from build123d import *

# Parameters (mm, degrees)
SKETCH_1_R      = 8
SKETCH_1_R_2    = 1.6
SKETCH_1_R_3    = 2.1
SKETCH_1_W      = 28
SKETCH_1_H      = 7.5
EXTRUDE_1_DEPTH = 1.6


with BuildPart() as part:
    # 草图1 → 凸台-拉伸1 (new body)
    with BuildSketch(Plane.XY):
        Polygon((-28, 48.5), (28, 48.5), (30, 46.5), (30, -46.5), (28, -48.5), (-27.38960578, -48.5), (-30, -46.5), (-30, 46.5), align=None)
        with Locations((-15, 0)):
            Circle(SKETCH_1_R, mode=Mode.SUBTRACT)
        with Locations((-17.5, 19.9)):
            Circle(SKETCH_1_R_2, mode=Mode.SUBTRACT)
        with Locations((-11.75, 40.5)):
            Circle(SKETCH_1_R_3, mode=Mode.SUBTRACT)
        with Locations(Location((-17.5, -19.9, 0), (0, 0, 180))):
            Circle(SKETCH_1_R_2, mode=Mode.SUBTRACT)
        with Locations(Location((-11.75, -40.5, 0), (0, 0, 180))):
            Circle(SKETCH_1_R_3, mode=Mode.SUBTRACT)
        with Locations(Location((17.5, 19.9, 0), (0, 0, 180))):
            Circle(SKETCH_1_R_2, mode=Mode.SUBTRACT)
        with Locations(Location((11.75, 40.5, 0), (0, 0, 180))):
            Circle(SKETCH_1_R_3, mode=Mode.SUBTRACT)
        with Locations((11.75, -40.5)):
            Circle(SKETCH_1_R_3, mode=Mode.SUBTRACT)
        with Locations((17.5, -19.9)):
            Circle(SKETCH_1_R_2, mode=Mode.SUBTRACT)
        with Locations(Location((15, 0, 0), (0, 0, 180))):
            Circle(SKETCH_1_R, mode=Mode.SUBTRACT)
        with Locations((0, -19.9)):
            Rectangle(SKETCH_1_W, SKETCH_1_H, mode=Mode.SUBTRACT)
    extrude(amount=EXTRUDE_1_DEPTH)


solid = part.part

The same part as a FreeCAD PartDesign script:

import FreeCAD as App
import Part
import Sketcher
Q = App.Units.Quantity


def add_polygon(sketch, points):
    """Adds a closed chain of lines whose ends are joined by coincident constraints."""
    first, n = sketch.GeometryCount, len(points)
    for a, b in zip(points, points[1:] + points[:1]):
        sketch.addGeometry(Part.LineSegment(App.Vector(*a, 0), App.Vector(*b, 0)), False)
    for i in range(n):
        sketch.addConstraint(Sketcher.Constraint("Coincident", first + i, 2, first + (i + 1) % n, 1))

doc = App.newDocument("Part")
body = doc.addObject("PartDesign::Body", "Body")

sketch1 = body.newObject("Sketcher::SketchObject", "Sketch")
sketch1.AttachmentSupport = (doc.getObject("XY_Plane"), [""])
sketch1.MapMode = "FlatFace"
add_polygon(sketch1, [(28, 48.5), (-28, 48.5), (-30, 46.5), (-30, -46.5), (-27.4, -48.5), (28, -48.5), (30, -46.5), (30, 46.5)])
sketch1.addGeometry(Part.Circle(App.Vector(11.8, -40.5, 0), App.Vector(0, 0, 1), 2.1), False)
sketch1.addGeometry(Part.Circle(App.Vector(17.5, -19.9, 0), App.Vector(0, 0, 1), 1.6), False)
sketch1.addGeometry(Part.Circle(App.Vector(-11.8, -40.5, 0), App.Vector(0, 0, 1), 2.1), False)
add_polygon(sketch1, [(-14, -23.6), (-14, -16.1), (14, -16.1), (14, -23.6)])
sketch1.addGeometry(Part.Circle(App.Vector(-17.5, -19.9, 0), App.Vector(0, 0, 1), 1.6), False)
sketch1.addGeometry(Part.Circle(App.Vector(15, 0, 0), App.Vector(0, 0, 1), 8), False)
sketch1.addGeometry(Part.Circle(App.Vector(17.5, 19.9, 0), App.Vector(0, 0, 1), 1.6), False)
sketch1.addGeometry(Part.Circle(App.Vector(11.8, 40.5, 0), App.Vector(0, 0, 1), 2.1), False)
sketch1.addGeometry(Part.Circle(App.Vector(-15, 0, 0), App.Vector(0, 0, 1), 8), False)
sketch1.addGeometry(Part.Circle(App.Vector(-17.5, 19.9, 0), App.Vector(0, 0, 1), 1.6), False)
sketch1.addGeometry(Part.Circle(App.Vector(-11.8, 40.5, 0), App.Vector(0, 0, 1), 2.1), False)
sketch1.addConstraint(Sketcher.Constraint("Horizontal", 0))
sketch1.addConstraint(Sketcher.Constraint("Vertical", 2))
sketch1.addConstraint(Sketcher.Constraint("Horizontal", 4))
sketch1.addConstraint(Sketcher.Constraint("Vertical", 6))
sketch1.addConstraint(Sketcher.Constraint("Vertical", 11))
sketch1.addConstraint(Sketcher.Constraint("Horizontal", 12))
sketch1.addConstraint(Sketcher.Constraint("Vertical", 13))
sketch1.addConstraint(Sketcher.Constraint("Horizontal", 14))
sketch1.addConstraint(Sketcher.Constraint("Equal", 8, 10))
sketch1.addConstraint(Sketcher.Constraint("Equal", 9, 15))
sketch1.addConstraint(Sketcher.Constraint("Equal", 15, 17))
sketch1.addConstraint(Sketcher.Constraint("Equal", 10, 18))
sketch1.addConstraint(Sketcher.Constraint("Equal", 16, 19))
sketch1.addConstraint(Sketcher.Constraint("Equal", 17, 20))
sketch1.addConstraint(Sketcher.Constraint("Equal", 18, 21))
sketch1.addConstraint(Sketcher.Constraint("Symmetric", 15, 3, 17, 3, -1, 1))
sketch1.addConstraint(Sketcher.Constraint("Symmetric", 10, 3, 18, 3, -1, 1))
sketch1.addConstraint(Sketcher.Constraint("Symmetric", 16, 3, 19, 3, -1, 1))
sketch1.addConstraint(Sketcher.Constraint("Symmetric", 9, 3, 20, 3, -1, 1))
sketch1.addConstraint(Sketcher.Constraint("Symmetric", 8, 3, 21, 3, -1, 1))
sketch1.addConstraint(Sketcher.Constraint("Symmetric", 0, 2, 4, 2, -1, 1))
sketch1.addConstraint(Sketcher.Constraint("Symmetric", 1, 2, 5, 2, -1, 1))
sketch1.addConstraint(Sketcher.Constraint("Symmetric", 8, 3, 10, 3, -2))
sketch1.addConstraint(Sketcher.Constraint("Symmetric", 9, 3, 15, 3, -2))
sketch1.addConstraint(Sketcher.Constraint("PointOnObject", 16, 3, -1))
sketch1.addConstraint(Sketcher.Constraint("Perpendicular", 5, 7))
sketch1.addConstraint(Sketcher.Constraint("Horizontal", 2, 2, 5, 2))
sketch1.addConstraint(Sketcher.Constraint("Horizontal", 1, 2, 6, 2))
sketch1.addConstraint(Sketcher.Constraint("Vertical", 4, 2, 7, 2))
sketch1.addConstraint(Sketcher.Constraint("Diameter", 16, Q("16 mm")))
sketch1.addConstraint(Sketcher.Constraint("Diameter", 8, Q("4.2 mm")))
sketch1.addConstraint(Sketcher.Constraint("Diameter", 9, Q("3.2 mm")))
sketch1.addConstraint(Sketcher.Constraint("DistanceX", 0, 2, 0, 1, Q("56 mm")))
sketch1.addConstraint(Sketcher.Constraint("DistanceX", 12, 1, 12, 2, Q("28 mm")))
sketch1.addConstraint(Sketcher.Constraint("DistanceY", 2, 2, 2, 1, Q("93 mm")))
sketch1.addConstraint(Sketcher.Constraint("DistanceY", 11, 1, 11, 2, Q("7.5 mm")))
sketch1.addConstraint(Sketcher.Constraint("DistanceX", -1, 1, 16, 3, Q("15 mm")))
sketch1.addConstraint(Sketcher.Constraint("DistanceX", 1, 2, -1, 1, Q("30 mm")))
sketch1.addConstraint(Sketcher.Constraint("DistanceX", 11, 2, -1, 1, Q("14 mm")))
sketch1.addConstraint(Sketcher.Constraint("DistanceX", 15, 3, 9, 3, Q("35 mm")))
sketch1.addConstraint(Sketcher.Constraint("DistanceY", 8, 3, 18, 3, Q("81 mm")))
sketch1.addConstraint(Sketcher.Constraint("DistanceY", 9, 3, -1, 1, Q("19.9 mm")))
sketch1.addConstraint(Sketcher.Constraint("DistanceX", 10, 3, 8, 3, Q("23.5 mm")))
sketch1.addConstraint(Sketcher.Constraint("DistanceY", 11, 2, -1, 1, Q("16.15 mm")))
sketch1.addConstraint(Sketcher.Constraint("Distance", 3, Q("3.288489 mm")))
pad1 = body.newObject("PartDesign::Pad", "Pad")
pad1.Profile = sketch1
pad1.Length = 1.6

doc.recompute()
